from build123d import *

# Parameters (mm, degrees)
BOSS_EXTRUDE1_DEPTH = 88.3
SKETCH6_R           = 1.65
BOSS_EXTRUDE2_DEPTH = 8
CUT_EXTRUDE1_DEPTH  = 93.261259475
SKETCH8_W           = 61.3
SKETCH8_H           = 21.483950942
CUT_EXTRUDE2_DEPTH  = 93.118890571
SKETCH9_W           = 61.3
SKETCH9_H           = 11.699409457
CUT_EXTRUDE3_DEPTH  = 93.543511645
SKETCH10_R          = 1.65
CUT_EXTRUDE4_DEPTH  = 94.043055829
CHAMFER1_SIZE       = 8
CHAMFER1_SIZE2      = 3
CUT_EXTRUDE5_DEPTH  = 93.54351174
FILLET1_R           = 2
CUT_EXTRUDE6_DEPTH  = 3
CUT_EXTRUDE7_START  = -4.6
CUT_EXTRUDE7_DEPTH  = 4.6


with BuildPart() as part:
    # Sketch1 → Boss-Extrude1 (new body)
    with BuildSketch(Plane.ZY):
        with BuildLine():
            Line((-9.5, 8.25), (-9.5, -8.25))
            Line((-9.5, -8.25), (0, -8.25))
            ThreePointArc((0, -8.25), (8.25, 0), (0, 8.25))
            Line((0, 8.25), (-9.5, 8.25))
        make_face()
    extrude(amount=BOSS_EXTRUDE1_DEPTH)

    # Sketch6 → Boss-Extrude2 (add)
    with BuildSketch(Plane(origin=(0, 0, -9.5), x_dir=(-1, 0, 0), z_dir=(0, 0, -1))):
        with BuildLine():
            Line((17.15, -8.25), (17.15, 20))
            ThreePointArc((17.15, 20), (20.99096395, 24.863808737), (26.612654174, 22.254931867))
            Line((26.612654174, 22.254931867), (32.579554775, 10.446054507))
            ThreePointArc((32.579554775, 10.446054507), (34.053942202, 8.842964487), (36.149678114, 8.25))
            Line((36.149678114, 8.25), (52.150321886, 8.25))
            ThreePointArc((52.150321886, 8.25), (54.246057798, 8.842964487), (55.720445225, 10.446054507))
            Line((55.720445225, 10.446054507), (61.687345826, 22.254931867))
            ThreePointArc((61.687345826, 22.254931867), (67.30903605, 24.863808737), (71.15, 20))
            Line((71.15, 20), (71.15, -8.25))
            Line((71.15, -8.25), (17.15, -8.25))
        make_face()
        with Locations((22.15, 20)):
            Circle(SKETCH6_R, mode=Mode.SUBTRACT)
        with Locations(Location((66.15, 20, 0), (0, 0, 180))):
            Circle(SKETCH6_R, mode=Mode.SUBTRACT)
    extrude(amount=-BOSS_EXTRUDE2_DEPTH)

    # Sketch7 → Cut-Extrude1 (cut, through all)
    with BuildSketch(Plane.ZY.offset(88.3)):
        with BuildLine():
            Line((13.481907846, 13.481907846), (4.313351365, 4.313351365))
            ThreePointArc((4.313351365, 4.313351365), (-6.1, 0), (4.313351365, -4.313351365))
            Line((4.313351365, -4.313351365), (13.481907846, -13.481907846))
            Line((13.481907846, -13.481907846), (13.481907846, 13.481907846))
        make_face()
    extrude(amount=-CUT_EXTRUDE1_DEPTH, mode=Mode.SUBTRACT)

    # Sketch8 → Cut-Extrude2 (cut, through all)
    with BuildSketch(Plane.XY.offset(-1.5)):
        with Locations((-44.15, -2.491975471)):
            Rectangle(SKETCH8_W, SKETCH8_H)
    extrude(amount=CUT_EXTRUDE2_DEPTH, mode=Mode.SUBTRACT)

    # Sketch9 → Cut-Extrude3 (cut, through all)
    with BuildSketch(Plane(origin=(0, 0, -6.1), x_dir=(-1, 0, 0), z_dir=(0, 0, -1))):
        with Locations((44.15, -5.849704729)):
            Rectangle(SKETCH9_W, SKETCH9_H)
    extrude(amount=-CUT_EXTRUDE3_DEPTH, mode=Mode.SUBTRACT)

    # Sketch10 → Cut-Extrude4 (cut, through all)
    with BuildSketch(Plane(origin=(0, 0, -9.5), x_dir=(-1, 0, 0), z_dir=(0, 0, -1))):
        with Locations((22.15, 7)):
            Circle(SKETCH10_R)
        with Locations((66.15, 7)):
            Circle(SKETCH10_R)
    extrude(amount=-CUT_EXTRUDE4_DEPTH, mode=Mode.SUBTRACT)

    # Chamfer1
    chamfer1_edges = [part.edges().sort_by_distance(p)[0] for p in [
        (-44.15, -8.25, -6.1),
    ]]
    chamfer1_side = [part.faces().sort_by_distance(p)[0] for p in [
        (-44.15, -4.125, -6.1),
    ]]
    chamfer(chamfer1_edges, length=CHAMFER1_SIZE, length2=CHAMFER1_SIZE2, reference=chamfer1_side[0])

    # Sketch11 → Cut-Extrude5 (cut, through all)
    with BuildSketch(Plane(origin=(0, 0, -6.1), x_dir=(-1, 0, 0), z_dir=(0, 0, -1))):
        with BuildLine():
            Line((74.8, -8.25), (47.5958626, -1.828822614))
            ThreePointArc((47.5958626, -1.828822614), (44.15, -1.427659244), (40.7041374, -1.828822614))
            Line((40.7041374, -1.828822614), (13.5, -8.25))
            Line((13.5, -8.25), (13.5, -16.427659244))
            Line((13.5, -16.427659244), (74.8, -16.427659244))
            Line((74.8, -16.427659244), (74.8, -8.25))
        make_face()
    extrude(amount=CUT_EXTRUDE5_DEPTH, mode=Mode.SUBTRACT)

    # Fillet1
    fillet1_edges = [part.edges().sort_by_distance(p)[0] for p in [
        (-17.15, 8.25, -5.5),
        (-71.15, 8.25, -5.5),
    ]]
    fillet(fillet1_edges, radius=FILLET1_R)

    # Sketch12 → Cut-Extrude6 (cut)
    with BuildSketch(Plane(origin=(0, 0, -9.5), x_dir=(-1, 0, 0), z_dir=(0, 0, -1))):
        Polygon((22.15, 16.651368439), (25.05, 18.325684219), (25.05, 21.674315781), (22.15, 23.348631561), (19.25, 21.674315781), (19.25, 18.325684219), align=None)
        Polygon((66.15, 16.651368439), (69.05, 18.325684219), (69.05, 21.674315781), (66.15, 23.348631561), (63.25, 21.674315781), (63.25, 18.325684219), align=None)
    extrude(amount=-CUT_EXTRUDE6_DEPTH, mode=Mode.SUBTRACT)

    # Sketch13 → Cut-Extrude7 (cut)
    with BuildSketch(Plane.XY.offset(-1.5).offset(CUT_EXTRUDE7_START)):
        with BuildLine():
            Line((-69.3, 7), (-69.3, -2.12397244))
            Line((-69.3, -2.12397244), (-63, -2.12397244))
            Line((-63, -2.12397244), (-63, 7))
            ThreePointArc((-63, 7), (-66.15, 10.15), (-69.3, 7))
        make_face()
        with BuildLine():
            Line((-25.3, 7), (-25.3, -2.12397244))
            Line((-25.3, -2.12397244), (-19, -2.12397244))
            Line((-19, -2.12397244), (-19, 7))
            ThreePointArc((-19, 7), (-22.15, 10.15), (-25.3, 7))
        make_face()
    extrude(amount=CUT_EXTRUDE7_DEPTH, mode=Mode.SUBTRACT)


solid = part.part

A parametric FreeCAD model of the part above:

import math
import FreeCAD as App
import Part
import Sketcher
from FreeCAD import Vector
Q = App.Units.Quantity


def edges_at(feature, points):
    """Names of the edges that pass closest to the given points."""
    edges = feature.Shape.Edges
    near = lambda p: min(range(len(edges)), key=lambda i: edges[i].distToShape(Part.Vertex(*p))[0])
    return sorted({f"Edge{near(p) + 1}" for p in points})


def add_polygon(sketch, points):
    """Adds a closed chain of lines whose ends are joined by coincident constraints."""
    first, n = sketch.GeometryCount, len(points)
    for a, b in zip(points, points[1:] + points[:1]):
        sketch.addGeometry(Part.LineSegment(App.Vector(*a, 0), App.Vector(*b, 0)), False)
    for i in range(n):
        sketch.addConstraint(Sketcher.Constraint("Coincident", first + i, 2, first + (i + 1) % n, 1))

doc = App.newDocument("Part")
body = doc.addObject("PartDesign::Body", "Body")

# Sketch on YZ plane
sketch1 = body.newObject("Sketcher::SketchObject", "Sketch")
sketch1.AttachmentSupport = (doc.getObject("YZ_Plane"), [""])
sketch1.MapMode = "FlatFace"
sketch1.addGeometry([
    Part.LineSegment(Vector(8, -10, 0), Vector(-8, -10, 0)),
    Part.LineSegment(Vector(-8, -10, 0), Vector(-8, 0, 0)),
    Part.ArcOfCircle(Part.Circle(Vector(0, 0, 0), Vector(0, 0, 1), 8), math.radians(0), math.radians(180)),
    Part.LineSegment(Vector(8, 0, 0), Vector(8, -10, 0)),
], False)
sketch1.addConstraint([
    Sketcher.Constraint("Coincident", 0, 2, 1, 1),
    Sketcher.Constraint("Tangent", 1, 2, 2, 2),
    Sketcher.Constraint("Tangent", 2, 1, 3, 1),
    Sketcher.Constraint("Coincident", 3, 2, 0, 1),
    Sketcher.Constraint("Horizontal", 0),
    Sketcher.Constraint("Vertical", 1),
    Sketcher.Constraint("Vertical", 3),
    Sketcher.Constraint("Coincident", 2, 3, -1, 1),
    Sketcher.Constraint("Radius", 2, Q("8.25 mm")),
    Sketcher.Constraint("DistanceY", 1, 1, 1, 2, Q("9.5 mm")),
])
pad1 = body.newObject("PartDesign::Pad", "Pad")
pad1.Profile = sketch1
pad1.Length = 88.3
pad1.Reversed = True

# Sketch on XY plane
sketch2 = body.newObject("Sketcher::SketchObject", "Sketch001")
sketch2.AttachmentSupport = (doc.getObject("XY_Plane"), [""])
sketch2.MapMode = "FlatFace"
sketch2.AttachmentOffset = App.Placement(Vector(0, 0, -9.5), App.Rotation())
sketch2.addGeometry([
    Part.LineSegment(Vector(-17.1, 20, 0), Vector(-17.1, -8.2, 0)),  # 0
    Part.LineSegment(Vector(-17.1, -8.2, 0), Vector(-71.2, -8.2, 0)),  # 1
    Part.LineSegment(Vector(-71.2, -8.2, 0), Vector(-71.2, 20, 0)),  # 2
    Part.ArcOfCircle(Part.Circle(Vector(-66.2, 20, 0), Vector(0, 0, 1), 5), math.radians(27), math.radians(180)),  # 3
    Part.LineSegment(Vector(-61.7, 22.3, 0), Vector(-55.7, 10.4, 0)),  # 4
    Part.ArcOfCircle(Part.Circle(Vector(-52.2, 12.2, 0), Vector(0, 0, 1), 4), math.radians(-153), math.radians(-90)),  # 5
    Part.LineSegment(Vector(-52.2, 8.2, 0), Vector(-36.1, 8.2, 0)),  # 6
    Part.ArcOfCircle(Part.Circle(Vector(-36.1, 12.2, 0), Vector(0, 0, 1), 4), math.radians(-90), math.radians(-27)),  # 7
    Part.LineSegment(Vector(-32.6, 10.4, 0), Vector(-26.6, 22.3, 0)),  # 8
    Part.ArcOfCircle(Part.Circle(Vector(-22.1, 20, 0), Vector(0, 0, 1), 5), math.radians(0), math.radians(153)),  # 9
    Part.Circle(Vector(-66.2, 20, 0), Vector(0, 0, 1), 1.6),  # 10
    Part.Circle(Vector(-22.1, 20, 0), Vector(0, 0, 1), 1.6),  # 11
], False)
sketch2.addConstraint([
    Sketcher.Constraint("Coincident", 0, 2, 1, 1),
    Sketcher.Constraint("Coincident", 1, 2, 2, 1),
    Sketcher.Constraint("Tangent", 2, 2, 3, 2),
    Sketcher.Constraint("Tangent", 3, 1, 4, 1),
    Sketcher.Constraint("Tangent", 4, 2, 5, 1),
    Sketcher.Constraint("Tangent", 5, 2, 6, 1),
    Sketcher.Constraint("Tangent", 6, 2, 7, 1),
    Sketcher.Constraint("Tangent", 7, 2, 8, 1),
    Sketcher.Constraint("Tangent", 8, 2, 9, 2),
    Sketcher.Constraint("Tangent", 9, 1, 0, 1),
    Sketcher.Constraint("Vertical", 0),
    Sketcher.Constraint("Horizontal", 1),
    Sketcher.Constraint("Vertical", 2),
    Sketcher.Constraint("Horizontal", 6),
    Sketcher.Constraint("Coincident", 10, 3, 3, 3),
    Sketcher.Constraint("Coincident", 11, 3, 9, 3),
    Sketcher.Constraint("Equal", 5, 7),
    Sketcher.Constraint("Equal", 3, 9),
    Sketcher.Constraint("Equal", 10, 11),
    Sketcher.Constraint("Horizontal", 3, 3, 9, 3),
    Sketcher.Constraint("Horizontal", 4, 2, 7, 2),
    Sketcher.Constraint("Radius", 3, Q("5 mm")),
    Sketcher.Constraint("Radius", 5, Q("4 mm")),
    Sketcher.Constraint("Diameter", 10, Q("3.3 mm")),
    Sketcher.Constraint("DistanceX", 1, 2, 1, 1, Q("54 mm")),
    Sketcher.Constraint("DistanceY", -1, 1, 3, 3, Q("20 mm")),
    Sketcher.Constraint("DistanceY", 0, 2, 0, 1, Q("28.25 mm")),
    Sketcher.Constraint("DistanceY", 0, 2, 7, 3, Q("20.5 mm")),
    Sketcher.Constraint("DistanceX", 3, 3, -1, 1, Q("66.15 mm")),
    Sketcher.Constraint("DistanceX", 3, 1, 4, 2, Q("5.966901 mm")),
])
pad2 = body.newObject("PartDesign::Pad", "Pad001")
pad2.Profile = sketch2
pad2.Length = 8

# Sketch on YZ plane
sketch3 = body.newObject("Sketcher::SketchObject", "Sketch002")
sketch3.AttachmentSupport = (doc.getObject("YZ_Plane"), [""])
sketch3.MapMode = "FlatFace"
sketch3.AttachmentOffset = App.Placement(Vector(0, 0, -88.3), App.Rotation())
sketch3.addGeometry([
    Part.LineSegment(Vector(13, 13, 0), Vector(4, 4, 0)),
    Part.ArcOfCircle(Part.Circle(Vector(0, 0, 0), Vector(0, 0, 1), 6), math.radians(135), math.radians(405)),
    Part.LineSegment(Vector(-4, 4, 0), Vector(-13, 13, 0)),
    Part.LineSegment(Vector(-13, 13, 0), Vector(13, 13, 0)),
], False)
sketch3.addConstraint([
    Sketcher.Constraint("Coincident", 0, 2, 1, 2),
    Sketcher.Constraint("Coincident", 1, 1, 2, 1),
    Sketcher.Constraint("Coincident", 2, 2, 3, 1),
    Sketcher.Constraint("Coincident", 3, 2, 0, 1),
    Sketcher.Constraint("Horizontal", 3),
    Sketcher.Constraint("Coincident", 1, 3, -1, 1),
    Sketcher.Constraint("Perpendicular", 0, 2),
    Sketcher.Constraint("Horizontal", 0, 2, 1, 1),
    Sketcher.Constraint("Equal", 0, 2),
    Sketcher.Constraint("Radius", 1, Q("6.1 mm")),
    Sketcher.Constraint("DistanceX", 3, 1, 3, 2, Q("26.963816 mm")),
    Sketcher.Constraint("DistanceX", -1, 1, 0, 2, Q("4.313351 mm")),
])
pocket1 = body.newObject("PartDesign::Pocket", "Pocket")
pocket1.Profile = sketch3
pocket1.Type = "ThroughAll"
pocket1.Reversed = True

# Sketch on XY plane
sketch4 = body.newObject("Sketcher::SketchObject", "Sketch003")
sketch4.AttachmentSupport = (doc.getObject("XY_Plane"), [""])
sketch4.MapMode = "FlatFace"
sketch4.AttachmentOffset = App.Placement(Vector(0, 0, -1.5), App.Rotation())
add_polygon(sketch4, [(-75, 8), (-75, -13), (-14, -13), (-14, 8)])  # lines 0-3
sketch4.addConstraint([
    Sketcher.Constraint("Vertical", 0),
    Sketcher.Constraint("Horizontal", 1),
    Sketcher.Constraint("Vertical", 2),
    Sketcher.Constraint("Horizontal", 3),
    Sketcher.Constraint("DistanceX", 1, 1, 1, 2, Q("61.3 mm")),
    Sketcher.Constraint("DistanceX", 0, 2, -1, 1, Q("74.8 mm")),
    Sketcher.Constraint("DistanceY", -1, 1, 2, 2, Q("8.25 mm")),
    Sketcher.Constraint("DistanceY", 0, 2, 0, 1, Q("21.483951 mm")),
])
pocket2 = body.newObject("PartDesign::Pocket", "Pocket001")
pocket2.Profile = sketch4
pocket2.Type = "ThroughAll"
pocket2.Reversed = True

# Sketch on XY plane
sketch5 = body.newObject("Sketcher::SketchObject", "Sketch004")
sketch5.AttachmentSupport = (doc.getObject("XY_Plane"), [""])
sketch5.MapMode = "FlatFace"
sketch5.AttachmentOffset = App.Placement(Vector(0, 0, -6.1), App.Rotation())
add_polygon(sketch5, [(-14, 0), (-14, -12), (-75, -12), (-75, 0)])  # lines 0-3
sketch5.addConstraint([
    Sketcher.Constraint("Vertical", 0),
    Sketcher.Constraint("Horizontal", 1),
    Sketcher.Constraint("Vertical", 2),
    Sketcher.Constraint("Horizontal", 3),
    Sketcher.Constraint("PointOnObject", 2, 2, -1),
    Sketcher.Constraint("DistanceX", 1, 2, 1, 1, Q("61.3 mm")),
    Sketcher.Constraint("DistanceX", 0, 2, -1, 1, Q("13.5 mm")),
    Sketcher.Constraint("DistanceY", 0, 2, 0, 1, Q("11.699409 mm")),
])
pocket3 = body.newObject("PartDesign::Pocket", "Pocket002")
pocket3.Profile = sketch5
pocket3.Type = "ThroughAll"
pocket3.Reversed = True

# Sketch on XY plane
sketch6 = body.newObject("Sketcher::SketchObject", "Sketch005")
sketch6.AttachmentSupport = (doc.getObject("XY_Plane"), [""])
sketch6.MapMode = "FlatFace"
sketch6.AttachmentOffset = App.Placement(Vector(0, 0, -9.5), App.Rotation())
sketch6.addGeometry([
    Part.Circle(Vector(-22.1, 7, 0), Vector(0, 0, 1), 1.6),
    Part.Circle(Vector(-66.2, 7, 0), Vector(0, 0, 1), 1.6),
], False)
sketch6.addConstraint([
    Sketcher.Constraint("Equal", 0, 1),
    Sketcher.Constraint("Horizontal", 0, 3, 1, 3),
    Sketcher.Constraint("Diameter", 0, Q("3.3 mm")),
    Sketcher.Constraint("DistanceY", -1, 1, 0, 3, Q("7 mm")),
    Sketcher.Constraint("DistanceX", 1, 3, 0, 3, Q("44 mm")),
    Sketcher.Constraint("DistanceX", 0, 3, -1, 1, Q("22.15 mm")),
])
pocket4 = body.newObject("PartDesign::Pocket", "Pocket003")
pocket4.Profile = sketch6
pocket4.Type = "ThroughAll"
pocket4.Reversed = True
doc.recompute()

chamfer = body.newObject("PartDesign::Chamfer", "Chamfer")
chamfer.Base = (pocket4, edges_at(pocket4, [(-44.15, -8.25, -6.1)]))
chamfer.ChamferType = "Two distances"
chamfer.Size = 8
chamfer.Size2 = 3
chamfer.FlipDirection = True

# Sketch on XY plane
sketch7 = body.newObject("Sketcher::SketchObject", "Sketch006")
sketch7.AttachmentSupport = (doc.getObject("XY_Plane"), [""])
sketch7.MapMode = "FlatFace"
sketch7.AttachmentOffset = App.Placement(Vector(0, 0, -6.1), App.Rotation())
sketch7.addGeometry([
    Part.LineSegment(Vector(-75, -8, 0), Vector(-48, -2, 0)),  # 0
    Part.ArcOfCircle(Part.Circle(Vector(-44, -16, 0), Vector(0, 0, 1), 15), math.radians(77), math.radians(103)),  # 1
    Part.LineSegment(Vector(-41, -2, 0), Vector(-14, -8, 0)),  # 2
    Part.LineSegment(Vector(-14, -8, 0), Vector(-14, -16, 0)),  # 3
    Part.LineSegment(Vector(-14, -16, 0), Vector(-75, -16, 0)),  # 4
    Part.LineSegment(Vector(-75, -16, 0), Vector(-75, -8, 0)),  # 5
], False)
sketch7.addConstraint([
    Sketcher.Constraint("Tangent", 0, 2, 1, 2),
    Sketcher.Constraint("Tangent", 1, 1, 2, 1),
    Sketcher.Constraint("Coincident", 2, 2, 3, 1),
    Sketcher.Constraint("Coincident", 3, 2, 4, 1),
    Sketcher.Constraint("Coincident", 4, 2, 5, 1),
    Sketcher.Constraint("Coincident", 5, 2, 0, 1),
    Sketcher.Constraint("Vertical", 3),
    Sketcher.Constraint("Horizontal", 4),
    Sketcher.Constraint("Vertical", 5),
    Sketcher.Constraint("Horizontal", 0, 2, 1, 1),
    Sketcher.Constraint("Horizontal", 1, 3, 3, 2),
    Sketcher.Constraint("Horizontal", 2, 2, 5, 2),
    Sketcher.Constraint("Radius", 1, Q("15 mm")),
    Sketcher.Constraint("DistanceX", 4, 2, 4, 1, Q("61.3 mm")),
    Sketcher.Constraint("DistanceX", 2, 2, -1, 1, Q("13.5 mm")),
    Sketcher.Constraint("DistanceY", 2, 2, -1, 1, Q("8.25 mm")),
    Sketcher.Constraint("DistanceY", 3, 2, 3, 1, Q("8.177659 mm")),
])
pocket5 = body.newObject("PartDesign::Pocket", "Pocket004")
pocket5.Profile = sketch7
pocket5.Type = "ThroughAll"
doc.recompute()

fillet = body.newObject("PartDesign::Fillet", "Fillet")
fillet.Base = (pocket5, edges_at(pocket5, [(-17.15, 8.25, -5.5), (-71.15, 8.25, -5.5)]))
fillet.Radius = 2

# Sketch on XY plane
sketch8 = body.newObject("Sketcher::SketchObject", "Sketch007")
sketch8.AttachmentSupport = (doc.getObject("XY_Plane"), [""])
sketch8.MapMode = "FlatFace"
sketch8.AttachmentOffset = App.Placement(Vector(0, 0, -9.5), App.Rotation())
add_polygon(sketch8, [(-22.1, 16.7), (-25.1, 18.3), (-25.1, 21.7), (-22.1, 23.3), (-19.2, 21.7), (-19.2, 18.3)])  # lines 0-5
add_polygon(sketch8, [(-66.2, 16.7), (-69, 18.3), (-69, 21.7), (-66.2, 23.3), (-63.2, 21.7), (-63.2, 18.3)])  # lines 6-11
sketch8.addConstraint([
    Sketcher.Constraint("Vertical", 1),
    Sketcher.Constraint("Vertical", 4),
    Sketcher.Constraint("Vertical", 7),
    Sketcher.Constraint("Vertical", 10),
    Sketcher.Constraint("Parallel", 0, 3),
    Sketcher.Constraint("Parallel", 2, 5),
    Sketcher.Constraint("Parallel", 3, 6),
    Sketcher.Constraint("Parallel", 5, 8),
    Sketcher.Constraint("Parallel", 6, 9),
    Sketcher.Constraint("Parallel", 8, 11),
    Sketcher.Constraint("Horizontal", 1, 2, 3, 2),
    Sketcher.Constraint("Horizontal", 0, 2, 4, 2),
    Sketcher.Constraint("Horizontal", 4, 2, 6, 2),
    Sketcher.Constraint("Horizontal", 3, 2, 7, 2),
    Sketcher.Constraint("Horizontal", 2, 2, 8, 2),
    Sketcher.Constraint("Horizontal", 7, 2, 9, 2),
    Sketcher.Constraint("Horizontal", 6, 2, 10, 2),
    Sketcher.Constraint("Vertical", 2, 2, 5, 2),
    Sketcher.Constraint("Angle", 0, Q("150 deg")),
    Sketcher.Constraint("DistanceX", 6, 2, 0, 2, Q("44 mm")),
    Sketcher.Constraint("DistanceX", 1, 2, 2, 2, Q("2.9 mm")),
    Sketcher.Constraint("DistanceX", 0, 2, -1, 1, Q("25.05 mm")),
    Sketcher.Constraint("DistanceY", 1, 1, 1, 2, Q("3.348632 mm")),
    Sketcher.Constraint("DistanceY", -1, 1, 2, 2, Q("23.348632 mm")),
])
pocket6 = body.newObject("PartDesign::Pocket", "Pocket005")
pocket6.Profile = sketch8
pocket6.Length = 3
pocket6.Reversed = True

# Sketch on XY plane
sketch9 = body.newObject("Sketcher::SketchObject", "Sketch008")
sketch9.AttachmentSupport = (doc.getObject("XY_Plane"), [""])
sketch9.MapMode = "FlatFace"
sketch9.AttachmentOffset = App.Placement(Vector(0, 0, -6.1), App.Rotation())
sketch9.addGeometry([
    Part.LineSegment(Vector(-69.3, 7, 0), Vector(-69.3, -2.1, 0)),  # 0
    Part.LineSegment(Vector(-69.3, -2.1, 0), Vector(-63, -2.1, 0)),  # 1
    Part.LineSegment(Vector(-63, -2.1, 0), Vector(-63, 7, 0)),  # 2
    Part.ArcOfCircle(Part.Circle(Vector(-66.2, 7, 0), Vector(0, 0, 1), 3.1), math.radians(0), math.radians(180)),  # 3
    Part.LineSegment(Vector(-25.3, 7, 0), Vector(-25.3, -2.1, 0)),  # 4
    Part.LineSegment(Vector(-25.3, -2.1, 0), Vector(-19, -2.1, 0)),  # 5
    Part.LineSegment(Vector(-19, -2.1, 0), Vector(-19, 7, 0)),  # 6
    Part.ArcOfCircle(Part.Circle(Vector(-22.1, 7, 0), Vector(0, 0, 1), 3.1), math.radians(0), math.radians(180)),  # 7
], False)
sketch9.addConstraint([
    Sketcher.Constraint("Coincident", 0, 2, 1, 1),
    Sketcher.Constraint("Coincident", 1, 2, 2, 1),
    Sketcher.Constraint("Tangent", 2, 2, 3, 1),
    Sketcher.Constraint("Tangent", 3, 2, 0, 1),
    Sketcher.Constraint("Coincident", 4, 2, 5, 1),
    Sketcher.Constraint("Coincident", 5, 2, 6, 1),
    Sketcher.Constraint("Tangent", 6, 2, 7, 1),
    Sketcher.Constraint("Tangent", 7, 2, 4, 1),
    Sketcher.Constraint("Vertical", 0),
    Sketcher.Constraint("Horizontal", 1),
    Sketcher.Constraint("Vertical", 2),
    Sketcher.Constraint("Vertical", 4),
    Sketcher.Constraint("Horizontal", 5),
    Sketcher.Constraint("Vertical", 6),
    Sketcher.Constraint("Equal", 3, 7),
    Sketcher.Constraint("Horizontal", 3, 3, 7, 3),
    Sketcher.Constraint("Horizontal", 1, 2, 4, 2),
    Sketcher.Constraint("Radius", 3, Q("3.15 mm")),
    Sketcher.Constraint("DistanceY", -1, 1, 3, 3, Q("7 mm")),
    Sketcher.Constraint("DistanceX", 1, 2, -1, 1, Q("63 mm")),
    Sketcher.Constraint("DistanceX", 5, 2, -1, 1, Q("19 mm")),
    Sketcher.Constraint("DistanceY", 0, 2, 0, 1, Q("9.123972 mm")),
])
pocket7 = body.newObject("PartDesign::Pocket", "Pocket006")
pocket7.Profile = sketch9
pocket7.Length = 4.6
pocket7.Reversed = True

doc.recompute()
